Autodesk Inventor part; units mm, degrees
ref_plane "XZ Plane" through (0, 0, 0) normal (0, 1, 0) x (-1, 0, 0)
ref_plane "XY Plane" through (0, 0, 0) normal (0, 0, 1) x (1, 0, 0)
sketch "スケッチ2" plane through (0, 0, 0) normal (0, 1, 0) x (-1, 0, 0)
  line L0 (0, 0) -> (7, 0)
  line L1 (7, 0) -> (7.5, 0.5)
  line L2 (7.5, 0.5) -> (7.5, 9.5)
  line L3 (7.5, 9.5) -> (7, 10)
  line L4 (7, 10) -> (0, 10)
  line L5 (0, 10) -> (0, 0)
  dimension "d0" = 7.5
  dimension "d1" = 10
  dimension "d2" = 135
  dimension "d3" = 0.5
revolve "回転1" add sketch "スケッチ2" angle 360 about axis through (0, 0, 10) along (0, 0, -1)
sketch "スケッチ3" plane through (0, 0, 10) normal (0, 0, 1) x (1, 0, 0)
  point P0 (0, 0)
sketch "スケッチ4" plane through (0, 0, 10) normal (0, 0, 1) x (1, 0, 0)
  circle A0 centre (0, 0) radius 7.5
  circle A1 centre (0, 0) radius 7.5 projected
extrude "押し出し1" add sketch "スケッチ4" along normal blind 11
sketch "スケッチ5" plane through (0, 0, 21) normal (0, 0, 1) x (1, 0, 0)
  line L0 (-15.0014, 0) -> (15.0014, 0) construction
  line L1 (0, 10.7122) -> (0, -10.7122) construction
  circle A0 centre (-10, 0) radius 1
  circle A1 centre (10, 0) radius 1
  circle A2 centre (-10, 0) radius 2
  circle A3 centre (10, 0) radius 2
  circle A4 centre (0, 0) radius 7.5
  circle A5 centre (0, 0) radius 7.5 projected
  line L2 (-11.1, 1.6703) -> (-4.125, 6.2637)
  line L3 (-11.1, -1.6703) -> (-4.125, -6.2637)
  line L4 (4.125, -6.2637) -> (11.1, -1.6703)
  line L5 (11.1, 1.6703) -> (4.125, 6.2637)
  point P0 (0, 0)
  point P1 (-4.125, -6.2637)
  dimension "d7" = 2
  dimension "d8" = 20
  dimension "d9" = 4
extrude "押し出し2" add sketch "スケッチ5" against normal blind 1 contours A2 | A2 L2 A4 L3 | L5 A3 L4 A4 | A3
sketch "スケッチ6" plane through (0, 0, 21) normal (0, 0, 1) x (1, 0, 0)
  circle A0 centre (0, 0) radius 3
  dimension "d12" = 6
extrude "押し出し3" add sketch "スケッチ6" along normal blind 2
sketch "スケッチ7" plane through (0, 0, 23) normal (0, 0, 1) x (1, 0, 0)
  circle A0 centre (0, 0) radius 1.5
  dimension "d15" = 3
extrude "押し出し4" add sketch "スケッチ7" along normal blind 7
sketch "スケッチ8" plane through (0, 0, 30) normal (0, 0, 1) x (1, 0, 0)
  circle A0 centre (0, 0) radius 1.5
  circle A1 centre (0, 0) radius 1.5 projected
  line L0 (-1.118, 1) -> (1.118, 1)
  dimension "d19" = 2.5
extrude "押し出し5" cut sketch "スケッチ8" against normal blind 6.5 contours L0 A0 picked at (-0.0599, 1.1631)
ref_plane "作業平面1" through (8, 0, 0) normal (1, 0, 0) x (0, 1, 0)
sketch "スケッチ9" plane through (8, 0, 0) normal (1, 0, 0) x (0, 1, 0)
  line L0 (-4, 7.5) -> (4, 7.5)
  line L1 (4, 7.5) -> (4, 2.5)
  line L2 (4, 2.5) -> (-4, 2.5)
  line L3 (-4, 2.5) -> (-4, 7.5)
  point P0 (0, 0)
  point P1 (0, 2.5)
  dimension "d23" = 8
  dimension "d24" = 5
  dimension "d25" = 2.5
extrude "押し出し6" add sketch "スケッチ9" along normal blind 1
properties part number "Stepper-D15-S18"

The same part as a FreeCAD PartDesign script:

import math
import FreeCAD as App
import Part
import Sketcher
from FreeCAD import Vector
Q = App.Units.Quantity


def add_polygon(sketch, points):
    """Adds a closed chain of lines whose ends are joined by coincident constraints."""
    first, n = sketch.GeometryCount, len(points)
    for a, b in zip(points, points[1:] + points[:1]):
        sketch.addGeometry(Part.LineSegment(App.Vector(*a, 0), App.Vector(*b, 0)), False)
    for i in range(n):
        sketch.addConstraint(Sketcher.Constraint("Coincident", first + i, 2, first + (i + 1) % n, 1))

doc = App.newDocument("Part")
body = doc.addObject("PartDesign::Body", "Body")
body.AllowCompound = True

sketch1 = body.newObject("Sketcher::SketchObject", "Sketch")
sketch1.AttachmentSupport = (doc.getObject("XZ_Plane"), [""])
sketch1.MapMode = "FlatFace"
add_polygon(sketch1, [(0, 10), (0, 0), (-7, 0), (-7.5, 0.5), (-7.5, 9.5), (-7, 10)])
sketch1.addConstraint([
    Sketcher.Constraint("Vertical", 0),
    Sketcher.Constraint("Horizontal", 1),
    Sketcher.Constraint("Vertical", 3),
    Sketcher.Constraint("Horizontal", 5),
    Sketcher.Constraint("Coincident", 0, 2, -1, 1),
    Sketcher.Constraint("Perpendicular", 2, 4),
    Sketcher.Constraint("Vertical", 1, 2, 4, 2),
    Sketcher.Constraint("Equal", 2, 4),
    Sketcher.Constraint("DistanceY", 0, 2, 0, 1, Q("10 mm")),
    Sketcher.Constraint("DistanceX", 2, 2, -1, 1, Q("7.5 mm")),
    Sketcher.Constraint("DistanceY", -1, 1, 2, 2, Q("0.5 mm")),
])
revolution = body.newObject("PartDesign::Revolution", "Revolution")
revolution.Profile = sketch1
revolution.ReferenceAxis = (sketch1, ["V_Axis"])
revolution.Angle = 360

sketch2 = body.newObject("Sketcher::SketchObject", "Sketch001")
sketch2.AttachmentSupport = (doc.getObject("XY_Plane"), [""])
sketch2.MapMode = "FlatFace"
sketch2.AttachmentOffset = App.Placement(Vector(0, 0, 10), App.Rotation())
sketch2.addGeometry(Part.Circle(Vector(0, 0, 0), Vector(0, 0, 1), 7.5), False)
sketch2.addConstraint([
    Sketcher.Constraint("Coincident", 0, 3, -1, 1),
    Sketcher.Constraint("Diameter", 0, Q("15 mm")),
])
pad1 = body.newObject("PartDesign::Pad", "Pad")
pad1.Profile = sketch2
pad1.Length = 11

sketch3 = body.newObject("Sketcher::SketchObject", "Sketch002")
sketch3.AttachmentSupport = (doc.getObject("XY_Plane"), [""])
sketch3.MapMode = "FlatFace"
sketch3.AttachmentOffset = App.Placement(Vector(0, 0, 21), App.Rotation())
sketch3.addGeometry([
    Part.ArcOfCircle(Part.Circle(Vector(-10, 0, 0), Vector(0, 0, 1), 2), math.radians(123.367475), math.radians(236.632525)),
    Part.LineSegment(Vector(-11.1, -1.6703, 0), Vector(-4.125, -6.2637, 0)),
    Part.ArcOfCircle(Part.Circle(Vector(0, 0, 0), Vector(0, 0, 1), 7.5), math.radians(123.36716), math.radians(236.63284)),
    Part.LineSegment(Vector(-4.125, 6.2637, 0), Vector(-11.1, 1.6703, 0)),
    Part.Circle(Vector(-10, 0, 0), Vector(0, 0, 1), 1),
    Part.LineSegment(Vector(11.1, 1.6703, 0), Vector(4.125, 6.2637, 0)),
    Part.ArcOfCircle(Part.Circle(Vector(0, 0, 0), Vector(0, 0, 1), 7.5), math.radians(-56.63284), math.radians(56.63284)),
    Part.LineSegment(Vector(4.125, -6.2637, 0), Vector(11.1, -1.6703, 0)),
    Part.ArcOfCircle(Part.Circle(Vector(10, 0, 0), Vector(0, 0, 1), 2), math.radians(-56.632525), math.radians(56.632525)),
    Part.Circle(Vector(10, 0, 0), Vector(0, 0, 1), 1),
], False)
sketch3.addConstraint([
    Sketcher.Constraint("Tangent", 0, 2, 1, 1),
    Sketcher.Constraint("Tangent", 1, 2, 2, 2),
    Sketcher.Constraint("Tangent", 2, 1, 3, 1),
    Sketcher.Constraint("Tangent", 3, 2, 0, 1),
    Sketcher.Constraint("Tangent", 5, 2, 6, 2),
    Sketcher.Constraint("Tangent", 6, 1, 7, 1),
    Sketcher.Constraint("Tangent", 7, 2, 8, 1),
    Sketcher.Constraint("Tangent", 8, 2, 5, 1),
    Sketcher.Constraint("Coincident", 2, 3, -1, 1),
    Sketcher.Constraint("Coincident", 6, 3, -1, 1),
    Sketcher.Constraint("Coincident", 4, 3, 0, 3),
    Sketcher.Constraint("Coincident", 9, 3, 8, 3),
    Sketcher.Constraint("Equal", 2, 6),
    Sketcher.Constraint("Equal", 0, 8),
    Sketcher.Constraint("Equal", 4, 9),
    Sketcher.Constraint("Symmetric", 0, 3, 8, 3, -1, 1),
    Sketcher.Constraint("PointOnObject", 0, 3, -1),
    Sketcher.Constraint("Diameter", 4, Q("2 mm")),
    Sketcher.Constraint("Radius", 0, Q("2 mm")),
    Sketcher.Constraint("DistanceX", 0, 3, 8, 3, Q("20 mm")),
    Sketcher.Constraint("Radius", 2, Q("7.5 mm")),
])
pad2 = body.newObject("PartDesign::Pad", "Pad001")
pad2.Profile = sketch3
pad2.Length = 1
pad2.Reversed = True

sketch4 = body.newObject("Sketcher::SketchObject", "Sketch003")
sketch4.AttachmentSupport = (doc.getObject("XY_Plane"), [""])
sketch4.MapMode = "FlatFace"
sketch4.AttachmentOffset = App.Placement(Vector(0, 0, 21), App.Rotation())
sketch4.addGeometry(Part.Circle(Vector(0, 0, 0), Vector(0, 0, 1), 3), False)
sketch4.addConstraint([
    Sketcher.Constraint("Coincident", 0, 3, -1, 1),
    Sketcher.Constraint("Diameter", 0, Q("6 mm")),
])
pad3 = body.newObject("PartDesign::Pad", "Pad002")
pad3.Profile = sketch4
pad3.Length = 2

sketch5 = body.newObject("Sketcher::SketchObject", "Sketch004")
sketch5.AttachmentSupport = (doc.getObject("XY_Plane"), [""])
sketch5.MapMode = "FlatFace"
sketch5.AttachmentOffset = App.Placement(Vector(0, 0, 23), App.Rotation())
sketch5.addGeometry(Part.Circle(Vector(0, 0, 0), Vector(0, 0, 1), 1.5), False)
sketch5.addConstraint([
    Sketcher.Constraint("Coincident", 0, 3, -1, 1),
    Sketcher.Constraint("Diameter", 0, Q("3 mm")),
])
pad4 = body.newObject("PartDesign::Pad", "Pad003")
pad4.Profile = sketch5
pad4.Length = 7

sketch6 = body.newObject("Sketcher::SketchObject", "Sketch005")
sketch6.AttachmentSupport = (doc.getObject("XY_Plane"), [""])
sketch6.MapMode = "FlatFace"
sketch6.AttachmentOffset = App.Placement(Vector(0, 0, 30), App.Rotation())
sketch6.addGeometry([
    Part.LineSegment(Vector(-1.118, 1, 0), Vector(1.118, 1, 0)),
    Part.ArcOfCircle(Part.Circle(Vector(0, 0, 0), Vector(0, 0, 1), 1.5), math.radians(41.81118), math.radians(138.18882)),
], False)
sketch6.addConstraint([
    Sketcher.Constraint("Coincident", 0, 1, 1, 2),
    Sketcher.Constraint("Coincident", 1, 1, 0, 2),
    Sketcher.Constraint("Horizontal", 0),
    Sketcher.Constraint("Coincident", 1, 3, -1, 1),
    Sketcher.Constraint("Radius", 1, Q("1.5 mm")),
    Sketcher.Constraint("DistanceY", -1, 1, 0, 1, Q("1 mm")),
])
pocket1 = body.newObject("PartDesign::Pocket", "Pocket")
pocket1.Profile = sketch6
pocket1.Length = 6.5

sketch7 = body.newObject("Sketcher::SketchObject", "Sketch006")
sketch7.AttachmentSupport = (doc.getObject("YZ_Plane"), [""])
sketch7.MapMode = "FlatFace"
sketch7.AttachmentOffset = App.Placement(Vector(0, 0, 8), App.Rotation())
add_polygon(sketch7, [(4, 7.5), (-4, 7.5), (-4, 2.5), (4, 2.5)])
sketch7.addConstraint([
    Sketcher.Constraint("Horizontal", 0),
    Sketcher.Constraint("Vertical", 1),
    Sketcher.Constraint("Horizontal", 2),
    Sketcher.Constraint("Vertical", 3),
    Sketcher.Constraint("DistanceX", 0, 2, 0, 1, Q("8 mm")),
    Sketcher.Constraint("DistanceY", 1, 2, 1, 1, Q("5 mm")),
    Sketcher.Constraint("DistanceY", -1, 1, 1, 2, Q("2.5 mm")),
    Sketcher.Constraint("DistanceX", 0, 2, -1, 1, Q("4 mm")),
])
pad5 = body.newObject("PartDesign::Pad", "Pad004")
pad5.Profile = sketch7
pad5.Length = 1

doc.recompute()
